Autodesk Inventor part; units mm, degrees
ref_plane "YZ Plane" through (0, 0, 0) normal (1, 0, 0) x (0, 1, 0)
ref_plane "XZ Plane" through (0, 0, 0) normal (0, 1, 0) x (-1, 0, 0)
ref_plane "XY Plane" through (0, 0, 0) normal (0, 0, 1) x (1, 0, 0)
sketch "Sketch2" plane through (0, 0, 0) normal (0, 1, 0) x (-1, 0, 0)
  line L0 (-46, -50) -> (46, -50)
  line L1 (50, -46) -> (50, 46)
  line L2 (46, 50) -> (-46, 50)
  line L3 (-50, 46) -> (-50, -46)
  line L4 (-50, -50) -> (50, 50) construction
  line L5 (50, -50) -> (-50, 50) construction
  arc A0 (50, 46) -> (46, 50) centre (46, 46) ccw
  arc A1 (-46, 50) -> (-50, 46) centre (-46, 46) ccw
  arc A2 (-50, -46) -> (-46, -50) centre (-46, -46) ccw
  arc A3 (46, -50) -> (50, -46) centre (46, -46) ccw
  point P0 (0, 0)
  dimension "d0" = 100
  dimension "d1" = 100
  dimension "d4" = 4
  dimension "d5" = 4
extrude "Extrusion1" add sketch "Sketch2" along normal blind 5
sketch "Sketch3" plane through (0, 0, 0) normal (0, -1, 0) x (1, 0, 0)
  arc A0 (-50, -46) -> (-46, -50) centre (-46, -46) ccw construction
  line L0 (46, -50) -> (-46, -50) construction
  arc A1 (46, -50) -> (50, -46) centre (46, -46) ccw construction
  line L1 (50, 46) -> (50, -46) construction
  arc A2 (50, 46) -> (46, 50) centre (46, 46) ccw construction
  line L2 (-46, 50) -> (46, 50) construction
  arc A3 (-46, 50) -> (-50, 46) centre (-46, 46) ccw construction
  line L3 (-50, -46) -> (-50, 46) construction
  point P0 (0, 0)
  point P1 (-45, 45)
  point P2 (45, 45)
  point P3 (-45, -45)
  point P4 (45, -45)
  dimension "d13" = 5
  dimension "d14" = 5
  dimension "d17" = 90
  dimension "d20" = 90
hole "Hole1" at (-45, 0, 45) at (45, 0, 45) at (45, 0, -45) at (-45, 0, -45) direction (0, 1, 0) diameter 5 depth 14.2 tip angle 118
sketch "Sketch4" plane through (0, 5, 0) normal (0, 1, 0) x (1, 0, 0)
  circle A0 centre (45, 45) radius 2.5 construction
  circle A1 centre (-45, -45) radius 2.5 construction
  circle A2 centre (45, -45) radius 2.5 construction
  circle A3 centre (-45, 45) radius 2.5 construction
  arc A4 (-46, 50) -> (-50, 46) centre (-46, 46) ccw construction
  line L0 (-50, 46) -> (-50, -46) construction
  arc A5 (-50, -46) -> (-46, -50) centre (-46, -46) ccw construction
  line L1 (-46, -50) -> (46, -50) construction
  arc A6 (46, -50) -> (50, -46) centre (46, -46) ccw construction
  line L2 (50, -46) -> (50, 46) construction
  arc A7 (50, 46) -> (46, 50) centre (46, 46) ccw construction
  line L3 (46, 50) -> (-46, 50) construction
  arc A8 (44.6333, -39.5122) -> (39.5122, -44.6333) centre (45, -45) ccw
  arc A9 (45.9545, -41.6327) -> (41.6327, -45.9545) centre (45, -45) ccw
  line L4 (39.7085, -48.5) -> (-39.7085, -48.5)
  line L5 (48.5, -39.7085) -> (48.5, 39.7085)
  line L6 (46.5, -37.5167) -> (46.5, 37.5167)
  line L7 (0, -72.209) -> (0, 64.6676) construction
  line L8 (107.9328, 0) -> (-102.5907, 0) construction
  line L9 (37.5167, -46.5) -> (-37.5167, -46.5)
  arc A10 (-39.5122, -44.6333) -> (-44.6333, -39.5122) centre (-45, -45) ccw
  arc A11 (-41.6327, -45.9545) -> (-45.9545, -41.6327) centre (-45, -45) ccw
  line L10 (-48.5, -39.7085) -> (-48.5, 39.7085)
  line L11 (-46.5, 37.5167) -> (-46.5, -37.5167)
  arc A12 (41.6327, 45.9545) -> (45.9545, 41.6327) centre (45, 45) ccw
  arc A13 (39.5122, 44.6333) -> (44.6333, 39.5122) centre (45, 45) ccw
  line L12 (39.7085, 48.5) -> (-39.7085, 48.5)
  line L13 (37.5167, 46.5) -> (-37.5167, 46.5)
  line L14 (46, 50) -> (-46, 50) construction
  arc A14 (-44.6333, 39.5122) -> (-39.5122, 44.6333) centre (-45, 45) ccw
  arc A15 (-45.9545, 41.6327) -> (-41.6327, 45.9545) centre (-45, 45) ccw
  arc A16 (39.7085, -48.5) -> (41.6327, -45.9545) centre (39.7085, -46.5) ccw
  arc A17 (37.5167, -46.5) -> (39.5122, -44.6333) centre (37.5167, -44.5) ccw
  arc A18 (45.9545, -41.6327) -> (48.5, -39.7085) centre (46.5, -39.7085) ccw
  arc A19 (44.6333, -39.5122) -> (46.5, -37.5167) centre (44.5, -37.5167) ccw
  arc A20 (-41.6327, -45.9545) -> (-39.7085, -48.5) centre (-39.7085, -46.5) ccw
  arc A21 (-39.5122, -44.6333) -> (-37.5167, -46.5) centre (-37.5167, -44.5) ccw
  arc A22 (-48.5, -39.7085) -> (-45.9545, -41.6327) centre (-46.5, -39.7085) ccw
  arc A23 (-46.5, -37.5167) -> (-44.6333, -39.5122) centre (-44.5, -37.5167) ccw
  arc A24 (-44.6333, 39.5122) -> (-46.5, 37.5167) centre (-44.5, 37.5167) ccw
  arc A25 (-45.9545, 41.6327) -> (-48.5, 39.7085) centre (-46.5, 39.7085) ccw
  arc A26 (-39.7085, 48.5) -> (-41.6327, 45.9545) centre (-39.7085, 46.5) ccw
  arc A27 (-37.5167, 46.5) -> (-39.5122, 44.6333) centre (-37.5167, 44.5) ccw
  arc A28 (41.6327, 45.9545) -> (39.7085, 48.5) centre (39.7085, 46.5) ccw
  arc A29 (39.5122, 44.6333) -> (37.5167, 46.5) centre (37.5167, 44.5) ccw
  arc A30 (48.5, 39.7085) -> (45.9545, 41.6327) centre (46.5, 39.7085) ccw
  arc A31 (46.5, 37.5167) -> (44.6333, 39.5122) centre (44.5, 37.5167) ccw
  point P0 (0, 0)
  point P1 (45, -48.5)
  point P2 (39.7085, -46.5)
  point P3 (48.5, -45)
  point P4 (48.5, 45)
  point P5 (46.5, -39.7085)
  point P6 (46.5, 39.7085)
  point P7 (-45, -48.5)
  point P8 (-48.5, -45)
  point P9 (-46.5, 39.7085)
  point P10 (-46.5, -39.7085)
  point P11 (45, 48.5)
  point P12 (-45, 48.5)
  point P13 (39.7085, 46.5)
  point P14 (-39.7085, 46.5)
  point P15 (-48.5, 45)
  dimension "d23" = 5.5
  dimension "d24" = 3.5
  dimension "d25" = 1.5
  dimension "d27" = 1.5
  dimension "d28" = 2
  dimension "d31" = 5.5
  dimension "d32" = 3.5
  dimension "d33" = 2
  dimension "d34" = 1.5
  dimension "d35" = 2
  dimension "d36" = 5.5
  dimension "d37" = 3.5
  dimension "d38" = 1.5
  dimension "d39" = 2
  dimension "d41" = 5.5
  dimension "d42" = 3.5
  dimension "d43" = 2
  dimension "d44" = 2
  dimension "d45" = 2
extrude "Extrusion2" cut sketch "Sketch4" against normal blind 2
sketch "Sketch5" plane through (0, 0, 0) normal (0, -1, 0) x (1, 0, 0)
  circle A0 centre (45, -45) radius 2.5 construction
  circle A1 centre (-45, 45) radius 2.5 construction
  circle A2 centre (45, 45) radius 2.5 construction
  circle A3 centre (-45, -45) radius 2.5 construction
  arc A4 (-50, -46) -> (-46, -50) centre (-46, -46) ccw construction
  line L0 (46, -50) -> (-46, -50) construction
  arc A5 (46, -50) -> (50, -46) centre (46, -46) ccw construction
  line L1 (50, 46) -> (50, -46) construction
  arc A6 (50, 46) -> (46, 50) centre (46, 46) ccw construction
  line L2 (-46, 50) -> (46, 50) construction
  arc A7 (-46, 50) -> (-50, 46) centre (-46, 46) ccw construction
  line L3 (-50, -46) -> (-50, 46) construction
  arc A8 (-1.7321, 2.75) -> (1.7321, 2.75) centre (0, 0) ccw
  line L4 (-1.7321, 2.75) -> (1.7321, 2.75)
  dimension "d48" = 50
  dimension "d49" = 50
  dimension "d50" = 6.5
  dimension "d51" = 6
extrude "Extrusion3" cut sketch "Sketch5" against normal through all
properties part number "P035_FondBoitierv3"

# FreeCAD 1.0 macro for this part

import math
import FreeCAD as App
import Part
import Sketcher

V = App.Vector

doc = App.newDocument("Part")
body = doc.addObject("PartDesign::Body", "Body")

# Sketch on XZ plane
sketch1 = body.newObject("Sketcher::SketchObject", "Sketch")
sketch1.AttachmentSupport = (doc.getObject("XZ_Plane"), [""])
sketch1.MapMode = "FlatFace"
sketch1.addGeometry([
    Part.ArcOfCircle(Part.Circle(V(46, -46, 0), V(0, 0, 1), 4), math.radians(-90), math.radians(0)),  # 0
    Part.LineSegment(V(46, -50, 0), V(-46, -50, 0)),  # 1
    Part.ArcOfCircle(Part.Circle(V(-46, -46, 0), V(0, 0, 1), 4), math.radians(180), math.radians(270)),  # 2
    Part.LineSegment(V(-50, -46, 0), V(-50, 46, 0)),  # 3
    Part.ArcOfCircle(Part.Circle(V(-46, 46, 0), V(0, 0, 1), 4), math.radians(90), math.radians(180)),  # 4
    Part.LineSegment(V(-46, 50, 0), V(46, 50, 0)),  # 5
    Part.ArcOfCircle(Part.Circle(V(46, 46, 0), V(0, 0, 1), 4), math.radians(0), math.radians(90)),  # 6
    Part.LineSegment(V(50, 46, 0), V(50, -46, 0)),  # 7
], False)
sketch1.addConstraint([
    Sketcher.Constraint("Tangent", 0, 1, 1, 1),
    Sketcher.Constraint("Tangent", 1, 2, 2, 2),
    Sketcher.Constraint("Tangent", 2, 1, 3, 1),
    Sketcher.Constraint("Tangent", 3, 2, 4, 2),
    Sketcher.Constraint("Tangent", 4, 1, 5, 1),
    Sketcher.Constraint("Tangent", 5, 2, 6, 2),
    Sketcher.Constraint("Tangent", 6, 1, 7, 1),
    Sketcher.Constraint("Tangent", 7, 2, 0, 2),
    Sketcher.Constraint("Horizontal", 1),
    Sketcher.Constraint("Vertical", 3),
    Sketcher.Constraint("Horizontal", 5),
    Sketcher.Constraint("Vertical", 7),
    Sketcher.Constraint("Equal", 0, 2),
    Sketcher.Constraint("Equal", 2, 4),
    Sketcher.Constraint("Equal", 4, 6),
    Sketcher.Constraint("Symmetric", 0, 3, 4, 3, -1, 1),
    Sketcher.Constraint("Equal", 5, 3),
    Sketcher.Constraint("Radius", 0, 4.0),
    Sketcher.Constraint("DistanceX", 1, 2, 1, 1, 92.0),
])
pad1 = body.newObject("PartDesign::Pad", "Pad")
pad1.Profile = sketch1
pad1.Length = 5
pad1.Reversed = True

# Sketch on XZ plane
sketch2 = body.newObject("Sketcher::SketchObject", "Sketch001")
sketch2.AttachmentSupport = (doc.getObject("XZ_Plane"), [""])
sketch2.MapMode = "FlatFace"
sketch2.addGeometry([
    Part.Circle(V(-45, 45, 0), V(0, 0, 1), 2.5),
    Part.Circle(V(45, 45, 0), V(0, 0, 1), 2.5),
    Part.Circle(V(45, -45, 0), V(0, 0, 1), 2.5),
    Part.Circle(V(-45, -45, 0), V(0, 0, 1), 2.5),
], False)
sketch2.addConstraint([
    Sketcher.Constraint("Equal", 0, 1),
    Sketcher.Constraint("Equal", 1, 2),
    Sketcher.Constraint("Equal", 2, 3),
    Sketcher.Constraint("Symmetric", 0, 3, 2, 3, -1, 1),
    Sketcher.Constraint("Symmetric", 1, 3, 3, 3, -1, 1),
    Sketcher.Constraint("Symmetric", 0, 3, 1, 3, -2),
    Sketcher.Constraint("Diameter", 0, 5.0),
    Sketcher.Constraint("DistanceX", 0, 3, -1, 1, 45.0),
    Sketcher.Constraint("DistanceY", -1, 1, 0, 3, 45.0),
])
doc.recompute()
hole = body.newObject("PartDesign::Hole", "Hole")
hole.Profile = sketch2
hole.ThreadType = "None"
hole.Diameter = 5
hole.DepthType = "Dimension"
hole.Depth = 14.2
hole.DrillPoint = "Angled"
hole.DrillPointAngle = 118

# Sketch on XZ plane
sketch3 = body.newObject("Sketcher::SketchObject", "Sketch002")
sketch3.AttachmentSupport = (doc.getObject("XZ_Plane"), [""])
sketch3.MapMode = "FlatFace"
sketch3.AttachmentOffset = App.Placement(V(0, 0, -5), App.Rotation())
sketch3.addGeometry([
    Part.ArcOfCircle(Part.Circle(V(45, 45, 0), V(0, 0, 1), 3.5), math.radians(164), math.radians(286)),  # 0
    Part.ArcOfCircle(Part.Circle(V(46.5, 39.7, 0), V(0, 0, 1), 2), math.radians(0), math.radians(106)),  # 1
    Part.LineSegment(V(48.5, 39.7, 0), V(48.5, -39.7, 0)),  # 2
    Part.ArcOfCircle(Part.Circle(V(46.5, -39.7, 0), V(0, 0, 1), 2), math.radians(-106), math.radians(0)),  # 3
    Part.ArcOfCircle(Part.Circle(V(45, -45, 0), V(0, 0, 1), 3.5), math.radians(74), math.radians(196)),  # 4
    Part.ArcOfCircle(Part.Circle(V(39.7, -46.5, 0), V(0, 0, 1), 2), math.radians(-90), math.radians(16)),  # 5
    Part.LineSegment(V(39.7, -48.5, 0), V(-39.7, -48.5, 0)),  # 6
    Part.ArcOfCircle(Part.Circle(V(-39.7, -46.5, 0), V(0, 0, 1), 2), math.radians(164), math.radians(270)),  # 7
    Part.ArcOfCircle(Part.Circle(V(-45, -45, 0), V(0, 0, 1), 3.5), math.radians(-16), math.radians(106)),  # 8
    Part.ArcOfCircle(Part.Circle(V(-46.5, -39.7, 0), V(0, 0, 1), 2), math.radians(180), math.radians(286)),  # 9
    Part.LineSegment(V(-48.5, -39.7, 0), V(-48.5, 39.7, 0)),  # 10
    Part.ArcOfCircle(Part.Circle(V(-46.5, 39.7, 0), V(0, 0, 1), 2), math.radians(74), math.radians(180)),  # 11
    Part.ArcOfCircle(Part.Circle(V(-45, 45, 0), V(0, 0, 1), 3.5), math.radians(-106), math.radians(16)),  # 12
    Part.ArcOfCircle(Part.Circle(V(-39.7, 46.5, 0), V(0, 0, 1), 2), math.radians(90), math.radians(196)),  # 13
    Part.LineSegment(V(-39.7, 48.5, 0), V(39.7, 48.5, 0)),  # 14
    Part.ArcOfCircle(Part.Circle(V(39.7, 46.5, 0), V(0, 0, 1), 2), math.radians(-16), math.radians(90)),  # 15
    Part.ArcOfCircle(Part.Circle(V(44.5, 37.5, 0), V(0, 0, 1), 2), math.radians(0), math.radians(86)),  # 16
    Part.ArcOfCircle(Part.Circle(V(45, 45, 0), V(0, 0, 1), 5.5), math.radians(-176), math.radians(-94)),  # 17
    Part.ArcOfCircle(Part.Circle(V(37.5, 44.5, 0), V(0, 0, 1), 2), math.radians(4), math.radians(90)),  # 18
    Part.LineSegment(V(37.5, 46.5, 0), V(-37.5, 46.5, 0)),  # 19
    Part.ArcOfCircle(Part.Circle(V(-37.5, 44.5, 0), V(0, 0, 1), 2), math.radians(90), math.radians(176)),  # 20
    Part.ArcOfCircle(Part.Circle(V(-45, 45, 0), V(0, 0, 1), 5.5), math.radians(-86), math.radians(-4)),  # 21
    Part.ArcOfCircle(Part.Circle(V(-44.5, 37.5, 0), V(0, 0, 1), 2), math.radians(94), math.radians(180)),  # 22
    Part.LineSegment(V(-46.5, 37.5, 0), V(-46.5, -37.5, 0)),  # 23
    Part.ArcOfCircle(Part.Circle(V(-44.5, -37.5, 0), V(0, 0, 1), 2), math.radians(180), math.radians(266)),  # 24
    Part.ArcOfCircle(Part.Circle(V(-45, -45, 0), V(0, 0, 1), 5.5), math.radians(4), math.radians(86)),  # 25
    Part.ArcOfCircle(Part.Circle(V(-37.5, -44.5, 0), V(0, 0, 1), 2), math.radians(-176), math.radians(-90)),  # 26
    Part.LineSegment(V(-37.5, -46.5, 0), V(37.5, -46.5, 0)),  # 27
    Part.ArcOfCircle(Part.Circle(V(37.5, -44.5, 0), V(0, 0, 1), 2), math.radians(-90), math.radians(-4)),  # 28
    Part.ArcOfCircle(Part.Circle(V(45, -45, 0), V(0, 0, 1), 5.5), math.radians(94), math.radians(176)),  # 29
    Part.ArcOfCircle(Part.Circle(V(44.5, -37.5, 0), V(0, 0, 1), 2), math.radians(-86), math.radians(0)),  # 30
    Part.LineSegment(V(46.5, -37.5, 0), V(46.5, 37.5, 0)),  # 31
], False)
sketch3.addConstraint([
    Sketcher.Constraint("Tangent", 0, 2, 1, 2),
    Sketcher.Constraint("Tangent", 1, 1, 2, 1),
    Sketcher.Constraint("Tangent", 2, 2, 3, 2),
    Sketcher.Constraint("Tangent", 3, 1, 4, 1),
    Sketcher.Constraint("Tangent", 4, 2, 5, 2),
    Sketcher.Constraint("Tangent", 5, 1, 6, 1),
    Sketcher.Constraint("Tangent", 6, 2, 7, 2),
    Sketcher.Constraint("Tangent", 7, 1, 8, 1),
    Sketcher.Constraint("Tangent", 8, 2, 9, 2),
    Sketcher.Constraint("Tangent", 9, 1, 10, 1),
    Sketcher.Constraint("Tangent", 10, 2, 11, 2),
    Sketcher.Constraint("Tangent", 11, 1, 12, 1),
    Sketcher.Constraint("Tangent", 12, 2, 13, 2),
    Sketcher.Constraint("Tangent", 13, 1, 14, 1),
    Sketcher.Constraint("Tangent", 14, 2, 15, 2),
    Sketcher.Constraint("Tangent", 15, 1, 0, 1),
    Sketcher.Constraint("Tangent", 16, 2, 17, 2),
    Sketcher.Constraint("Tangent", 17, 1, 18, 1),
    Sketcher.Constraint("Tangent", 18, 2, 19, 1),
    Sketcher.Constraint("Tangent", 19, 2, 20, 1),
    Sketcher.Constraint("Tangent", 20, 2, 21, 2),
    Sketcher.Constraint("Tangent", 21, 1, 22, 1),
    Sketcher.Constraint("Tangent", 22, 2, 23, 1),
    Sketcher.Constraint("Tangent", 23, 2, 24, 1),
    Sketcher.Constraint("Tangent", 24, 2, 25, 2),
    Sketcher.Constraint("Tangent", 25, 1, 26, 1),
    Sketcher.Constraint("Tangent", 26, 2, 27, 1),
    Sketcher.Constraint("Tangent", 27, 2, 28, 1),
    Sketcher.Constraint("Tangent", 28, 2, 29, 2),
    Sketcher.Constraint("Tangent", 29, 1, 30, 1),
    Sketcher.Constraint("Tangent", 30, 2, 31, 1),
    Sketcher.Constraint("Tangent", 31, 2, 16, 1),
    Sketcher.Constraint("Vertical", 2),
    Sketcher.Constraint("Horizontal", 6),
    Sketcher.Constraint("Vertical", 10),
    Sketcher.Constraint("Horizontal", 14),
    Sketcher.Constraint("Horizontal", 19),
    Sketcher.Constraint("Vertical", 23),
    Sketcher.Constraint("Horizontal", 27),
    Sketcher.Constraint("Vertical", 31),
    Sketcher.Constraint("Coincident", 17, 3, 0, 3),
    Sketcher.Constraint("Coincident", 21, 3, 12, 3),
    Sketcher.Constraint("Coincident", 25, 3, 8, 3),
    Sketcher.Constraint("Coincident", 29, 3, 4, 3),
    Sketcher.Constraint("Equal", 1, 3),
    Sketcher.Constraint("Equal", 0, 4),
    Sketcher.Constraint("Equal", 3, 5),
    Sketcher.Constraint("Equal", 5, 7),
    Sketcher.Constraint("Equal", 4, 8),
    Sketcher.Constraint("Equal", 7, 9),
    Sketcher.Constraint("Equal", 9, 11),
    Sketcher.Constraint("Equal", 8, 12),
    Sketcher.Constraint("Equal", 11, 13),
    Sketcher.Constraint("Equal", 13, 15),
    Sketcher.Constraint("Equal", 15, 16),
    Sketcher.Constraint("Equal", 16, 18),
    Sketcher.Constraint("Equal", 18, 20),
    Sketcher.Constraint("Equal", 17, 21),
    Sketcher.Constraint("Equal", 20, 22),
    Sketcher.Constraint("Equal", 22, 24),
    Sketcher.Constraint("Equal", 21, 25),
    Sketcher.Constraint("Equal", 24, 26),
    Sketcher.Constraint("Equal", 26, 28),
    Sketcher.Constraint("Equal", 25, 29),
    Sketcher.Constraint("Equal", 28, 30),
    Sketcher.Constraint("Symmetric", 0, 3, 8, 3, -1, 1),
    Sketcher.Constraint("Symmetric", 3, 3, 11, 3, -1, 1),
    Sketcher.Constraint("Symmetric", 5, 3, 13, 3, -1, 1),
    Sketcher.Constraint("Symmetric", 4, 3, 8, 3, -2),
    Sketcher.Constraint("Horizontal", 16, 3, 22, 3),
    Sketcher.Constraint("Horizontal", 15, 3, 18, 2),
    Sketcher.Constraint("Horizontal", 7, 3, 26, 2),
    Sketcher.Constraint("Vertical", 11, 3, 22, 2),
    Sketcher.Constraint("Equal", 14, 2),
    Sketcher.Constraint("Equal", 27, 23),
    Sketcher.Constraint("Radius", 1, 2.0),
    Sketcher.Constraint("Radius", 0, 3.5),
    Sketcher.Constraint("Radius", 17, 5.5),
    Sketcher.Constraint("DistanceX", 0, 3, 1, 3, 1.5),
    Sketcher.Constraint("DistanceX", -1, 1, 0, 3, 45.0),
])
pocket1 = body.newObject("PartDesign::Pocket", "Pocket")
pocket1.Profile = sketch3
pocket1.Length = 2
pocket1.Reversed = True

# Sketch on XZ plane
sketch4 = body.newObject("Sketcher::SketchObject", "Sketch003")
sketch4.AttachmentSupport = (doc.getObject("XZ_Plane"), [""])
sketch4.MapMode = "FlatFace"
sketch4.addGeometry([
    Part.LineSegment(V(1.7, 2.8, 0), V(-1.7, 2.8, 0)),
    Part.ArcOfCircle(Part.Circle(V(0, 0, 0), V(0, 0, 1), 3.3), math.radians(122), math.radians(418)),
], False)
sketch4.addConstraint([
    Sketcher.Constraint("Coincident", 0, 1, 1, 2),
    Sketcher.Constraint("Coincident", 1, 1, 0, 2),
    Sketcher.Constraint("Horizontal", 0),
    Sketcher.Constraint("Coincident", 1, 3, -1, 1),
    Sketcher.Constraint("Radius", 1, 3.25),
    Sketcher.Constraint("DistanceY", -1, 1, 0, 1, 2.75),
])
pocket2 = body.newObject("PartDesign::Pocket", "Pocket001")
pocket2.Profile = sketch4
pocket2.Type = "ThroughAll"

doc.recompute()
